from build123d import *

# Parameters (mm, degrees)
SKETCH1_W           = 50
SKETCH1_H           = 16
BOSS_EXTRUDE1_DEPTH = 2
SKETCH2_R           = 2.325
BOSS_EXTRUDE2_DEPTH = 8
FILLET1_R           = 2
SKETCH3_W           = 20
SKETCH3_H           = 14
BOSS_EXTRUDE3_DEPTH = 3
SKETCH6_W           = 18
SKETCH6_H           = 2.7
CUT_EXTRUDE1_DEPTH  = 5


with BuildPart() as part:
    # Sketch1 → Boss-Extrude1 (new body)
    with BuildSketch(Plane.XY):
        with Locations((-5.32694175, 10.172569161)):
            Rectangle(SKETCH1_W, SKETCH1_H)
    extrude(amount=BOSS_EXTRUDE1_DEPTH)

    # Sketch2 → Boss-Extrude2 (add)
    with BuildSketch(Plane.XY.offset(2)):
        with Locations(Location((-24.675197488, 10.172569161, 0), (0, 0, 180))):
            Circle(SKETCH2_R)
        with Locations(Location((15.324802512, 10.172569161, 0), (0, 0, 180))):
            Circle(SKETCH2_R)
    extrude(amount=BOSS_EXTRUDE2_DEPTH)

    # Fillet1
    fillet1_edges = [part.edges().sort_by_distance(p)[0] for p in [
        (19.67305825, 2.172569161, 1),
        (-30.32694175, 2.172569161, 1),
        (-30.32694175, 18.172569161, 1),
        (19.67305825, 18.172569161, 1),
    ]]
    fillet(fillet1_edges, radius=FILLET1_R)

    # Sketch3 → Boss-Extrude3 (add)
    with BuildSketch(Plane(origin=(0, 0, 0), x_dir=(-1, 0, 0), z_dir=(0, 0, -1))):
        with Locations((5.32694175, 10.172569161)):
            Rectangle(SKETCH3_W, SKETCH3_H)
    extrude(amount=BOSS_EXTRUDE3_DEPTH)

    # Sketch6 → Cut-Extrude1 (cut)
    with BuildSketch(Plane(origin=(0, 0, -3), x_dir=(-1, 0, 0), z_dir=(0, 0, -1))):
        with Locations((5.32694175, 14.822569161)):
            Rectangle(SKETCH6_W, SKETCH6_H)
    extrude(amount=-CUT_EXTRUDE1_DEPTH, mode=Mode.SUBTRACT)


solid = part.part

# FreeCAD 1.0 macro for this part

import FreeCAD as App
import Part
import Sketcher
from FreeCAD import Vector
Q = App.Units.Quantity


def edges_at(feature, points):
    """Names of the edges that pass closest to the given points."""
    edges = feature.Shape.Edges
    near = lambda p: min(range(len(edges)), key=lambda i: edges[i].distToShape(Part.Vertex(*p))[0])
    return sorted({f"Edge{near(p) + 1}" for p in points})

doc = App.newDocument("Part")
params = doc.addObject("Spreadsheet::Sheet", "Params")
for row, (alias, value) in enumerate([
    ("sketch1_width", "50 mm"),
    ("sketch1_height", "16 mm"),
    ("pad1_length", "2 mm"),
    ("sketch2_diameter", "4.65 mm"),
    ("pad2_length", "8 mm"),
    ("fillet_radius", "2 mm"),
    ("sketch3_width", "20 mm"),
    ("sketch3_height", "14 mm"),
    ("pad3_length", "3 mm"),
    ("sketch4_width", "18 mm"),
    ("sketch4_height", "2.7 mm"),
    ("pocket1_length", "5 mm"),
], start=1):
    params.set(f"A{row}", alias)
    params.set(f"B{row}", "=" + value)
    params.setAlias(f"B{row}", alias)

body = doc.addObject("PartDesign::Body", "Body")

# Sketch on XY plane
sketch1 = body.newObject("Sketcher::SketchObject", "Sketch")
sketch1.AttachmentSupport = (doc.getObject("XY_Plane"), [""])
sketch1.MapMode = "FlatFace"
sketch1.addGeometry(Part.LineSegment(Vector(-30.326942, 18.172569, 0), Vector(-30.326942, 2.172569, 0)), False)
sketch1.addGeometry(Part.LineSegment(Vector(-30.326942, 2.172569, 0), Vector(19.673058, 2.172569, 0)), False)
sketch1.addGeometry(Part.LineSegment(Vector(19.673058, 2.172569, 0), Vector(19.673058, 18.172569, 0)), False)
sketch1.addGeometry(Part.LineSegment(Vector(19.673058, 18.172569, 0), Vector(-30.326942, 18.172569, 0)), False)
sketch1.addConstraint(Sketcher.Constraint("Coincident", 0, 2, 1, 1))
sketch1.addConstraint(Sketcher.Constraint("Coincident", 1, 2, 2, 1))
sketch1.addConstraint(Sketcher.Constraint("Coincident", 2, 2, 3, 1))
sketch1.addConstraint(Sketcher.Constraint("Coincident", 3, 2, 0, 1))
sketch1.addConstraint(Sketcher.Constraint("Vertical", 0))
sketch1.addConstraint(Sketcher.Constraint("Horizontal", 1))
sketch1.addConstraint(Sketcher.Constraint("Vertical", 2))
sketch1.addConstraint(Sketcher.Constraint("Horizontal", 3))
sketch1.addConstraint(Sketcher.Constraint("DistanceX", 1, 1, 1, 2, Q("50 mm")))
sketch1.addConstraint(Sketcher.Constraint("DistanceY", 0, 2, 0, 1, Q("16 mm")))
sketch1.addConstraint(Sketcher.Constraint("DistanceX", 0, 2, -1, 1, Q("30.326942 mm")))
sketch1.addConstraint(Sketcher.Constraint("DistanceY", -1, 1, 0, 2, Q("2.172569 mm")))
sketch1.setExpression("Constraints[8]", "Params.sketch1_width")
sketch1.setExpression("Constraints[9]", "Params.sketch1_height")
pad1 = body.newObject("PartDesign::Pad", "Pad")
pad1.Profile = sketch1
pad1.setExpression("Length", "Params.pad1_length")

# Sketch on XY plane
sketch2 = body.newObject("Sketcher::SketchObject", "Sketch001")
sketch2.AttachmentSupport = (doc.getObject("XY_Plane"), [""])
sketch2.MapMode = "FlatFace"
sketch2.AttachmentOffset = App.Placement(Vector(0, 0, 2), App.Rotation())
sketch2.addGeometry(Part.Circle(Vector(-24.675197, 10.172569, 0), Vector(0, 0, 1), 2.325), False)
sketch2.addGeometry(Part.Circle(Vector(15.324803, 10.172569, 0), Vector(0, 0, 1), 2.325), False)
sketch2.addConstraint(Sketcher.Constraint("Equal", 0, 1))
sketch2.addConstraint(Sketcher.Constraint("Horizontal", 0, 3, 1, 3))
sketch2.addConstraint(Sketcher.Constraint("Diameter", 0, Q("4.65 mm")))
sketch2.addConstraint(Sketcher.Constraint("DistanceX", 0, 3, 1, 3, Q("40 mm")))
sketch2.addConstraint(Sketcher.Constraint("DistanceY", -1, 1, 0, 3, Q("10.172569 mm")))
sketch2.addConstraint(Sketcher.Constraint("DistanceX", 0, 3, -1, 1, Q("24.675197 mm")))
sketch2.setExpression("Constraints[2]", "Params.sketch2_diameter")
pad2 = body.newObject("PartDesign::Pad", "Pad001")
pad2.Profile = sketch2
pad2.setExpression("Length", "Params.pad2_length")
doc.recompute()

fillet = body.newObject("PartDesign::Fillet", "Fillet")
fillet.Base = (pad2, edges_at(pad2, [
    (19.673, 2.173, 1),
    (-30.327, 2.173, 1),
    (-30.327, 18.173, 1),
    (19.673, 18.173, 1),
]))
fillet.setExpression("Radius", "Params.fillet_radius")

# Sketch on XY plane
sketch3 = body.newObject("Sketcher::SketchObject", "Sketch002")
sketch3.AttachmentSupport = (doc.getObject("XY_Plane"), [""])
sketch3.MapMode = "FlatFace"
sketch3.addGeometry(Part.LineSegment(Vector(4.673058, 17.172569, 0), Vector(4.673058, 3.172569, 0)), False)
sketch3.addGeometry(Part.LineSegment(Vector(4.673058, 3.172569, 0), Vector(-15.326942, 3.172569, 0)), False)
sketch3.addGeometry(Part.LineSegment(Vector(-15.326942, 3.172569, 0), Vector(-15.326942, 17.172569, 0)), False)
sketch3.addGeometry(Part.LineSegment(Vector(-15.326942, 17.172569, 0), Vector(4.673058, 17.172569, 0)), False)
sketch3.addConstraint(Sketcher.Constraint("Coincident", 0, 2, 1, 1))
sketch3.addConstraint(Sketcher.Constraint("Coincident", 1, 2, 2, 1))
sketch3.addConstraint(Sketcher.Constraint("Coincident", 2, 2, 3, 1))
sketch3.addConstraint(Sketcher.Constraint("Coincident", 3, 2, 0, 1))
sketch3.addConstraint(Sketcher.Constraint("Vertical", 0))
sketch3.addConstraint(Sketcher.Constraint("Horizontal", 1))
sketch3.addConstraint(Sketcher.Constraint("Vertical", 2))
sketch3.addConstraint(Sketcher.Constraint("Horizontal", 3))
sketch3.addConstraint(Sketcher.Constraint("DistanceX", 1, 2, 1, 1, Q("20 mm")))
sketch3.addConstraint(Sketcher.Constraint("DistanceY", 0, 2, 0, 1, Q("14 mm")))
sketch3.addConstraint(Sketcher.Constraint("DistanceX", -1, 1, 0, 2, Q("4.673058 mm")))
sketch3.addConstraint(Sketcher.Constraint("DistanceY", -1, 1, 0, 2, Q("3.172569 mm")))
sketch3.setExpression("Constraints[8]", "Params.sketch3_width")
sketch3.setExpression("Constraints[9]", "Params.sketch3_height")
pad3 = body.newObject("PartDesign::Pad", "Pad002")
pad3.Profile = sketch3
pad3.setExpression("Length", "Params.pad3_length")
pad3.Reversed = True

# Sketch on XY plane
sketch4 = body.newObject("Sketcher::SketchObject", "Sketch003")
sketch4.AttachmentSupport = (doc.getObject("XY_Plane"), [""])
sketch4.MapMode = "FlatFace"
sketch4.AttachmentOffset = App.Placement(Vector(0, 0, -3), App.Rotation())
sketch4.addGeometry(Part.LineSegment(Vector(3.673058, 16.172569, 0), Vector(3.673058, 13.472569, 0)), False)
sketch4.addGeometry(Part.LineSegment(Vector(3.673058, 13.472569, 0), Vector(-14.326942, 13.472569, 0)), False)
sketch4.addGeometry(Part.LineSegment(Vector(-14.326942, 13.472569, 0), Vector(-14.326942, 16.172569, 0)), False)
sketch4.addGeometry(Part.LineSegment(Vector(-14.326942, 16.172569, 0), Vector(3.673058, 16.172569, 0)), False)
sketch4.addConstraint(Sketcher.Constraint("Coincident", 0, 2, 1, 1))
sketch4.addConstraint(Sketcher.Constraint("Coincident", 1, 2, 2, 1))
sketch4.addConstraint(Sketcher.Constraint("Coincident", 2, 2, 3, 1))
sketch4.addConstraint(Sketcher.Constraint("Coincident", 3, 2, 0, 1))
sketch4.addConstraint(Sketcher.Constraint("Vertical", 0))
sketch4.addConstraint(Sketcher.Constraint("Horizontal", 1))
sketch4.addConstraint(Sketcher.Constraint("Vertical", 2))
sketch4.addConstraint(Sketcher.Constraint("Horizontal", 3))
sketch4.addConstraint(Sketcher.Constraint("DistanceX", 1, 2, 1, 1, Q("18 mm")))
sketch4.addConstraint(Sketcher.Constraint("DistanceY", 0, 2, 0, 1, Q("2.7 mm")))
sketch4.addConstraint(Sketcher.Constraint("DistanceX", -1, 1, 0, 2, Q("3.673058 mm")))
sketch4.addConstraint(Sketcher.Constraint("DistanceY", -1, 1, 0, 2, Q("13.472569 mm")))
sketch4.setExpression("Constraints[8]", "Params.sketch4_width")
sketch4.setExpression("Constraints[9]", "Params.sketch4_height")
pocket1 = body.newObject("PartDesign::Pocket", "Pocket")
pocket1.Profile = sketch4
pocket1.setExpression("Length", "Params.pocket1_length")
pocket1.Reversed = True

doc.recompute()
